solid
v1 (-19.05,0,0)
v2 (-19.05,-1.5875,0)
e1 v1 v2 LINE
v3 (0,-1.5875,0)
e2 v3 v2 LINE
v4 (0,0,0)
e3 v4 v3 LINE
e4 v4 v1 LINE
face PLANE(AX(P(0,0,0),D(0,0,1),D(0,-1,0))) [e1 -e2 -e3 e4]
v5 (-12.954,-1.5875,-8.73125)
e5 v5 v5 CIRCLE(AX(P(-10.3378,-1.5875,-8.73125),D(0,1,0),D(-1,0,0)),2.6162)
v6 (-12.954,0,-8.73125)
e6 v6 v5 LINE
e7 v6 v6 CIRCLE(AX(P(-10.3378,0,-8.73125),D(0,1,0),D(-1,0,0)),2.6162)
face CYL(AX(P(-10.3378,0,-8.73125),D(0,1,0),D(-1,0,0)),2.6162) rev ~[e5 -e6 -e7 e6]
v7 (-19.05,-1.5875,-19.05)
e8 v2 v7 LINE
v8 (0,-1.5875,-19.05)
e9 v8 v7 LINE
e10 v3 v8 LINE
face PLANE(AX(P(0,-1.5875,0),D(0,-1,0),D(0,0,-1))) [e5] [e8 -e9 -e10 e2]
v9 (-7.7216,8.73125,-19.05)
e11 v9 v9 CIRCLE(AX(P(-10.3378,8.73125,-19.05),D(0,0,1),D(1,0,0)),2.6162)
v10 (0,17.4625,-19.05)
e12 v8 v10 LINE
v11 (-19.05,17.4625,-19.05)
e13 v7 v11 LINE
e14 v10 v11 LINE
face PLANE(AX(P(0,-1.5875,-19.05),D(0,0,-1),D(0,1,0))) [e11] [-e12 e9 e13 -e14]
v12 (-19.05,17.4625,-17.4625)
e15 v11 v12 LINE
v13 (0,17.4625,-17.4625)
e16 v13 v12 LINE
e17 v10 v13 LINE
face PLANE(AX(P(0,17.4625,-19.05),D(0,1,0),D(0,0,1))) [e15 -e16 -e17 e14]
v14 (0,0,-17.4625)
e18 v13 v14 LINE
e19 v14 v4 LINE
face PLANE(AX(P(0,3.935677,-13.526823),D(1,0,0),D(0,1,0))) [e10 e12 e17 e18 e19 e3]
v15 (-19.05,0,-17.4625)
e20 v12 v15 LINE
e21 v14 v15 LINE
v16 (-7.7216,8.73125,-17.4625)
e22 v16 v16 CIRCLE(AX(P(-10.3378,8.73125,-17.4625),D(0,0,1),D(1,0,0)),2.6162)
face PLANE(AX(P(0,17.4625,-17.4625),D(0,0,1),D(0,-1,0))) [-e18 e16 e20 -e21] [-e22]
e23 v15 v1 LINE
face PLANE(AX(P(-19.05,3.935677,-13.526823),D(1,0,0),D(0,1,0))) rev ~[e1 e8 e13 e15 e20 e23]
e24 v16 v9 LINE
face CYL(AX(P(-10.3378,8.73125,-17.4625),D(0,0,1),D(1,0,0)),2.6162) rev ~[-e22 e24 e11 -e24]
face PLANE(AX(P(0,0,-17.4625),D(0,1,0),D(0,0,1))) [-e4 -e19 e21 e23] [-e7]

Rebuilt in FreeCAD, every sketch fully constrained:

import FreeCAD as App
import Part
import Sketcher
Q = App.Units.Quantity


def add_polygon(sketch, points):
    """Adds a closed chain of lines whose ends are joined by coincident constraints."""
    first, n = sketch.GeometryCount, len(points)
    for a, b in zip(points, points[1:] + points[:1]):
        sketch.addGeometry(Part.LineSegment(App.Vector(*a, 0), App.Vector(*b, 0)), False)
    for i in range(n):
        sketch.addConstraint(Sketcher.Constraint("Coincident", first + i, 2, first + (i + 1) % n, 1))

doc = App.newDocument("Part")
body = doc.addObject("PartDesign::Body", "Body")

sketch1 = body.newObject("Sketcher::SketchObject", "Sketch")
sketch1.AttachmentSupport = (doc.getObject("YZ_Plane"), [""])
sketch1.MapMode = "FlatFace"
add_polygon(sketch1, [(0, -17.4625), (0, 0), (-1.5875, 0), (-1.5875, -19.05), (17.4625, -19.05), (17.4625, -17.4625)])
sketch1.addConstraint(Sketcher.Constraint("Vertical", 0))
sketch1.addConstraint(Sketcher.Constraint("Horizontal", 1))
sketch1.addConstraint(Sketcher.Constraint("Vertical", 2))
sketch1.addConstraint(Sketcher.Constraint("Horizontal", 3))
sketch1.addConstraint(Sketcher.Constraint("Vertical", 4))
sketch1.addConstraint(Sketcher.Constraint("Horizontal", 5))
sketch1.addConstraint(Sketcher.Constraint("Coincident", 0, 2, -1, 1))
sketch1.addConstraint(Sketcher.Constraint("Equal", 5, 0))
sketch1.addConstraint(Sketcher.Constraint("Equal", 3, 2))
sketch1.addConstraint(Sketcher.Constraint("DistanceX", 3, 1, 3, 2, Q("0.75 in")))
sketch1.addConstraint(Sketcher.Constraint("DistanceX", 1, 2, 1, 1, Q("0.0625 in")))
pad1 = body.newObject("PartDesign::Pad", "Pad")
pad1.Profile = sketch1
pad1.Length = Q("0.75 in")
pad1.Reversed = True

sketch2 = body.newObject("Sketcher::SketchObject", "Sketch001")
sketch2.AttachmentSupport = (doc.getObject("XY_Plane"), [""])
sketch2.MapMode = "FlatFace"
sketch2.AttachmentOffset = App.Placement(App.Vector(0, 0, -0.6875 * 25.4), App.Rotation())
sketch2.addGeometry(Part.Circle(App.Vector(-10.3378, 8.73125, 0), App.Vector(0, 0, 1), 2.6162), False)
sketch2.addConstraint(Sketcher.Constraint("Diameter", 0, Q("0.206 in")))
sketch2.addConstraint(Sketcher.Constraint("DistanceX", 0, 3, -1, 1, Q("0.407 in")))
sketch2.addConstraint(Sketcher.Constraint("DistanceY", -1, 1, 0, 3, Q("0.34375 in")))
pocket1 = body.newObject("PartDesign::Pocket", "Pocket")
pocket1.Profile = sketch2
pocket1.Length = Q("1 in")

sketch3 = body.newObject("Sketcher::SketchObject", "Sketch002")
sketch3.AttachmentSupport = (doc.getObject("XZ_Plane"), [""])
sketch3.MapMode = "FlatFace"
sketch3.addGeometry(Part.Circle(App.Vector(-10.3378, -8.73125, 0), App.Vector(0, 0, 1), 2.6162), False)
sketch3.addConstraint(Sketcher.Constraint("Diameter", 0, Q("0.206 in")))
sketch3.addConstraint(Sketcher.Constraint("DistanceX", 0, 3, -1, 1, Q("0.407 in")))
sketch3.addConstraint(Sketcher.Constraint("DistanceY", 0, 3, -1, 1, Q("0.34375 in")))
pocket2 = body.newObject("PartDesign::Pocket", "Pocket001")
pocket2.Profile = sketch3
pocket2.Length = Q("1 in")
pocket2.Reversed = True

doc.recompute()
